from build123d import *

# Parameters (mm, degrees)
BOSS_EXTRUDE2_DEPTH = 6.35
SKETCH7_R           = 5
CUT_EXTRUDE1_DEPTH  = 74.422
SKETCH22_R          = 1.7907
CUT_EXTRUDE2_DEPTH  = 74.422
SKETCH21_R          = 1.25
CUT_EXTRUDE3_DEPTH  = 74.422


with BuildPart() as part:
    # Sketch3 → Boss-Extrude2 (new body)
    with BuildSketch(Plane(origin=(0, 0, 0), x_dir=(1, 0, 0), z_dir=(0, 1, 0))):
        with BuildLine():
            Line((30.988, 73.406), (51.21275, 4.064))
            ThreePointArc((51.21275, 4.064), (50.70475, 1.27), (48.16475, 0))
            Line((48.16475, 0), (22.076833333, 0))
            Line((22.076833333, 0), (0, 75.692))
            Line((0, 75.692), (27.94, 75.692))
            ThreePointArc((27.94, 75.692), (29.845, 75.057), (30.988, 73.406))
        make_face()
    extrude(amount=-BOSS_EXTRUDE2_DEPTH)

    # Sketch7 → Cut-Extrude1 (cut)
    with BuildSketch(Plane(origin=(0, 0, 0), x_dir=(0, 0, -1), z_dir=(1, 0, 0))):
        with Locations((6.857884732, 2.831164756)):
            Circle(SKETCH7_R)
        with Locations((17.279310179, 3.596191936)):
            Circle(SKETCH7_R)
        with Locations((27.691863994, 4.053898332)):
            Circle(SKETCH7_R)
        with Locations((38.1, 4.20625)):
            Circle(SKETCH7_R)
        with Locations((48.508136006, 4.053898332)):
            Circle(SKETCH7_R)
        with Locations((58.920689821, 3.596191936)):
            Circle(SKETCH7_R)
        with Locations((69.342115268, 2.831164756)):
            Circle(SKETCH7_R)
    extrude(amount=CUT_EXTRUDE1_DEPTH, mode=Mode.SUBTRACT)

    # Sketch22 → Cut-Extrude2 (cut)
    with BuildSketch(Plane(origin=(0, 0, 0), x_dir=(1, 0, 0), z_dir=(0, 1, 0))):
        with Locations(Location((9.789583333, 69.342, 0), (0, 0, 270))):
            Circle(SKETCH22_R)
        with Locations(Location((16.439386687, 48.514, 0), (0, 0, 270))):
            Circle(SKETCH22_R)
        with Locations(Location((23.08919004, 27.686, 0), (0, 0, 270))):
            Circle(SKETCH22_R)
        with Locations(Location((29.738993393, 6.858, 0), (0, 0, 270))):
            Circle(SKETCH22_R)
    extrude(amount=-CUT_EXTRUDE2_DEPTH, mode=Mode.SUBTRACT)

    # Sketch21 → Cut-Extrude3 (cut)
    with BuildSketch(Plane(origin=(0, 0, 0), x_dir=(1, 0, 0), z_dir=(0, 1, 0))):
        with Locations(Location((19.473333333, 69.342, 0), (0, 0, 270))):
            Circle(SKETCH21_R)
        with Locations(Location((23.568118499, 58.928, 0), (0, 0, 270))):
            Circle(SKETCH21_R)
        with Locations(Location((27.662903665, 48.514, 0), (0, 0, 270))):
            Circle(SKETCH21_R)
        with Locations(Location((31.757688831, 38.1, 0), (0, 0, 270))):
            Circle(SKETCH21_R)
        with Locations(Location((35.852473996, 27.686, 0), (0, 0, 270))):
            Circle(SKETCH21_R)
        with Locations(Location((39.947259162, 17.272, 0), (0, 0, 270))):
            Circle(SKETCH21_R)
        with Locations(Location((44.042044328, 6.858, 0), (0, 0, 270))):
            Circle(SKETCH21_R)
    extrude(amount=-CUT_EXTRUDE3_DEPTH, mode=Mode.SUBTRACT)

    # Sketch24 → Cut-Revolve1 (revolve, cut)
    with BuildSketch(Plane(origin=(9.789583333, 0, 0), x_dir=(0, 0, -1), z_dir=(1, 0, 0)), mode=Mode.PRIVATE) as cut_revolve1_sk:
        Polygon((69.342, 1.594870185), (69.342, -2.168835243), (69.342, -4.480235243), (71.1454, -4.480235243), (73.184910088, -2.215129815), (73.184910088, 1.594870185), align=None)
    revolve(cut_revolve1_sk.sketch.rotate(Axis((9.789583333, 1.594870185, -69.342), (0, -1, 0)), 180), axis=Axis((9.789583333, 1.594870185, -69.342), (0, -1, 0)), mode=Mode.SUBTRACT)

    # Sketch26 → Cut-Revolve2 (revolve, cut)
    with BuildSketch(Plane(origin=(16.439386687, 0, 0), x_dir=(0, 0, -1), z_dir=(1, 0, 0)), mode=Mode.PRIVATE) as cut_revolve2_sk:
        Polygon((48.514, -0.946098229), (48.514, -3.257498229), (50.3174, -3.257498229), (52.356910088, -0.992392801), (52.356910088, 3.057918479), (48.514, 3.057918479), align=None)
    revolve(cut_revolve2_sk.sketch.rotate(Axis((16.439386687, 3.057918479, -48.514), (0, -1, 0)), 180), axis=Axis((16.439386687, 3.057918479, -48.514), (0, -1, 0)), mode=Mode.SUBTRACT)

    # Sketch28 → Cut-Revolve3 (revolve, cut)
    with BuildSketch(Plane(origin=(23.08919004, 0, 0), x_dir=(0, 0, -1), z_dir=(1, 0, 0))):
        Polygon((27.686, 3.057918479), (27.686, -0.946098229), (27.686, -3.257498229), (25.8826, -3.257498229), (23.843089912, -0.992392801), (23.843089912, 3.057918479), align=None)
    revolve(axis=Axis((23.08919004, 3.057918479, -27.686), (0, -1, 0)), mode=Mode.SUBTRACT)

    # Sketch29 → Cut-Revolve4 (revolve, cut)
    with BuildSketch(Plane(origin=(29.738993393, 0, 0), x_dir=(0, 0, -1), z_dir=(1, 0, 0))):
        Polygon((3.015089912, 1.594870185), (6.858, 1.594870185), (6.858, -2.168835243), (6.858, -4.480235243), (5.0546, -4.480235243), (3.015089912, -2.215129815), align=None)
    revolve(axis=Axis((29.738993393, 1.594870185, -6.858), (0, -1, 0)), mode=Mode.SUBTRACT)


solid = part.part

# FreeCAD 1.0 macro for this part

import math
import FreeCAD as App
import Part
import Sketcher

V = App.Vector
Q = App.Units.Quantity

doc = App.newDocument("Part")
body = doc.addObject("PartDesign::Body", "Body")

# Sketch on XZ plane
sketch1 = body.newObject("Sketcher::SketchObject", "Sketch")
sketch1.AttachmentSupport = (doc.getObject("XZ_Plane"), [""])
sketch1.MapMode = "FlatFace"
sketch1.addGeometry([
    Part.LineSegment(V(51.2, -4.1, 0), V(31, -73.4, 0)),  # 0
    Part.ArcOfCircle(Part.Circle(V(27.9, -72.5, 0), V(0, 0, 1), 3.2), math.radians(-90), math.radians(-16)),  # 1
    Part.LineSegment(V(27.9, -75.7, 0), V(0, -75.7, 0)),  # 2
    Part.LineSegment(V(0, -75.7, 0), V(22.1, 0, 0)),  # 3
    Part.LineSegment(V(22.1, 0, 0), V(48.2, 0, 0)),  # 4
    Part.ArcOfCircle(Part.Circle(V(48.2, -3.2, 0), V(0, 0, 1), 3.2), math.radians(-16), math.radians(90)),  # 5
], False)
sketch1.addConstraint([
    Sketcher.Constraint("Tangent", 0, 2, 1, 2),
    Sketcher.Constraint("Tangent", 1, 1, 2, 1),
    Sketcher.Constraint("Coincident", 2, 2, 3, 1),
    Sketcher.Constraint("Coincident", 3, 2, 4, 1),
    Sketcher.Constraint("Tangent", 4, 2, 5, 2),
    Sketcher.Constraint("Tangent", 5, 1, 0, 1),
    Sketcher.Constraint("Horizontal", 2),
    Sketcher.Constraint("Horizontal", 4),
    Sketcher.Constraint("Equal", 1, 5),
    Sketcher.Constraint("PointOnObject", 2, 2, -2),
    Sketcher.Constraint("PointOnObject", 3, 2, -1),
    Sketcher.Constraint("Parallel", 0, 3),
    Sketcher.Constraint("DistanceX", 2, 2, 2, 1, Q("1.1 in")),
    Sketcher.Constraint("Radius", 1, Q("0.125 in")),
    Sketcher.Constraint("DistanceX", -1, 1, 0, 2, Q("1.22 in")),
    Sketcher.Constraint("DistanceY", 0, 2, -1, 1, Q("2.89 in")),
])
pad1 = body.newObject("PartDesign::Pad", "Pad")
pad1.Profile = sketch1
pad1.Length = Q("0.25 in")

# Sketch on YZ plane
sketch2 = body.newObject("Sketcher::SketchObject", "Sketch001")
sketch2.AttachmentSupport = (doc.getObject("YZ_Plane"), [""])
sketch2.MapMode = "FlatFace"
sketch2.addGeometry([
    Part.Circle(V(3, -7, 0), V(0, 0, 1), 5),  # 0
    Part.Circle(V(4, -17, 0), V(0, 0, 1), 5),  # 1
    Part.Circle(V(4, -28, 0), V(0, 0, 1), 5),  # 2
    Part.Circle(V(4, -38, 0), V(0, 0, 1), 5),  # 3
    Part.Circle(V(4, -49, 0), V(0, 0, 1), 5),  # 4
    Part.Circle(V(4, -59, 0), V(0, 0, 1), 5),  # 5
    Part.Circle(V(3, -69, 0), V(0, 0, 1), 5),  # 6
], False)
sketch2.addConstraint([
    Sketcher.Constraint("Equal", 0, 1),
    Sketcher.Constraint("Equal", 1, 2),
    Sketcher.Constraint("Equal", 2, 3),
    Sketcher.Constraint("Equal", 3, 4),
    Sketcher.Constraint("Equal", 4, 5),
    Sketcher.Constraint("Equal", 5, 6),
    Sketcher.Constraint("Vertical", 2, 3, 4, 3),
    Sketcher.Constraint("Vertical", 1, 3, 5, 3),
    Sketcher.Constraint("Vertical", 0, 3, 6, 3),
    Sketcher.Constraint("DistanceY", 3, 3, -1, 1, Q("1.5 in")),
    Sketcher.Constraint("Diameter", 0, 10.0),
    Sketcher.Constraint("DistanceX", -1, 1, 2, 3, 4.053898),
    Sketcher.Constraint("DistanceX", -1, 1, 1, 3, 3.596192),
    Sketcher.Constraint("DistanceY", 1, 3, -1, 1, 17.27931),
    Sketcher.Constraint("DistanceX", -1, 1, 3, 3, 4.20625),
    Sketcher.Constraint("DistanceY", 5, 3, -1, 1, 58.92069),
    Sketcher.Constraint("DistanceY", 2, 3, 0, 3, 20.833979),
    Sketcher.Constraint("DistanceY", 4, 3, 0, 3, 41.650251),
    Sketcher.Constraint("DistanceY", 6, 3, 4, 3, 20.833979),
    Sketcher.Constraint("DistanceX", -1, 1, 0, 3, 2.831165),
    Sketcher.Constraint("DistanceY", 0, 3, -1, 1, 6.857885),
])
pocket1 = body.newObject("PartDesign::Pocket", "Pocket")
pocket1.Profile = sketch2
pocket1.Length = Q("2.93 in")
pocket1.Reversed = True

# Sketch on XZ plane
sketch3 = body.newObject("Sketcher::SketchObject", "Sketch002")
sketch3.AttachmentSupport = (doc.getObject("XZ_Plane"), [""])
sketch3.MapMode = "FlatFace"
sketch3.addGeometry([
    Part.Circle(V(9.8, -69.3, 0), V(0, 0, 1), 1.8),
    Part.Circle(V(16.4, -48.5, 0), V(0, 0, 1), 1.8),
    Part.Circle(V(23.1, -27.7, 0), V(0, 0, 1), 1.8),
    Part.Circle(V(29.7, -6.9, 0), V(0, 0, 1), 1.8),
], False)
sketch3.addConstraint([
    Sketcher.Constraint("Equal", 0, 1),
    Sketcher.Constraint("Equal", 1, 2),
    Sketcher.Constraint("Equal", 2, 3),
    Sketcher.Constraint("Diameter", 0, Q("0.141 in")),
    Sketcher.Constraint("DistanceY", 0, 3, -1, 1, Q("2.73 in")),
    Sketcher.Constraint("DistanceY", 1, 3, -1, 1, Q("1.91 in")),
    Sketcher.Constraint("DistanceY", 2, 3, -1, 1, Q("1.09 in")),
    Sketcher.Constraint("DistanceY", 3, 3, -1, 1, Q("0.27 in")),
    Sketcher.Constraint("DistanceX", -1, 1, 2, 3, 23.08919),
    Sketcher.Constraint("DistanceX", 0, 3, 3, 3, 19.94941),
    Sketcher.Constraint("DistanceX", -1, 1, 0, 3, 9.789583),
    Sketcher.Constraint("DistanceX", -1, 1, 1, 3, 16.439387),
])
pocket2 = body.newObject("PartDesign::Pocket", "Pocket001")
pocket2.Profile = sketch3
pocket2.Length = Q("2.93 in")
pocket2.Reversed = True

# Sketch on XZ plane
sketch4 = body.newObject("Sketcher::SketchObject", "Sketch003")
sketch4.AttachmentSupport = (doc.getObject("XZ_Plane"), [""])
sketch4.MapMode = "FlatFace"
sketch4.addGeometry([
    Part.Circle(V(19.5, -69.3, 0), V(0, 0, 1), 1.2),  # 0
    Part.Circle(V(23.6, -58.9, 0), V(0, 0, 1), 1.2),  # 1
    Part.Circle(V(27.7, -48.5, 0), V(0, 0, 1), 1.2),  # 2
    Part.Circle(V(31.8, -38.1, 0), V(0, 0, 1), 1.2),  # 3
    Part.Circle(V(35.9, -27.7, 0), V(0, 0, 1), 1.2),  # 4
    Part.Circle(V(39.9, -17.3, 0), V(0, 0, 1), 1.2),  # 5
    Part.Circle(V(44, -6.9, 0), V(0, 0, 1), 1.2),  # 6
], False)
sketch4.addConstraint([
    Sketcher.Constraint("Equal", 0, 1),
    Sketcher.Constraint("Equal", 1, 2),
    Sketcher.Constraint("Equal", 2, 3),
    Sketcher.Constraint("Equal", 3, 4),
    Sketcher.Constraint("Equal", 4, 5),
    Sketcher.Constraint("Equal", 5, 6),
    Sketcher.Constraint("DistanceY", 3, 3, -1, 1, Q("1.5 in")),
    Sketcher.Constraint("Diameter", 0, 2.5),
    Sketcher.Constraint("DistanceY", 0, 3, -1, 1, Q("2.73 in")),
    Sketcher.Constraint("DistanceY", 1, 3, -1, 1, Q("2.32 in")),
    Sketcher.Constraint("DistanceY", 2, 3, -1, 1, Q("1.91 in")),
    Sketcher.Constraint("DistanceY", 4, 3, -1, 1, Q("1.09 in")),
    Sketcher.Constraint("DistanceY", 5, 3, -1, 1, Q("0.68 in")),
    Sketcher.Constraint("DistanceY", 6, 3, -1, 1, Q("0.27 in")),
    Sketcher.Constraint("DistanceX", -1, 1, 1, 3, 23.568118),
    Sketcher.Constraint("DistanceX", -1, 1, 3, 3, 31.757689),
    Sketcher.Constraint("DistanceX", -1, 1, 5, 3, 39.947259),
    Sketcher.Constraint("DistanceX", 0, 3, 2, 3, 8.18957),
    Sketcher.Constraint("DistanceX", 2, 3, 4, 3, 8.18957),
    Sketcher.Constraint("DistanceX", 4, 3, 6, 3, 8.18957),
    Sketcher.Constraint("DistanceX", -1, 1, 0, 3, 19.473333),
])
pocket3 = body.newObject("PartDesign::Pocket", "Pocket002")
pocket3.Profile = sketch4
pocket3.Length = Q("2.93 in")
pocket3.Reversed = True

# Sketch on YZ plane
sketch5 = body.newObject("Sketcher::SketchObject", "Sketch004")
sketch5.AttachmentSupport = (doc.getObject("YZ_Plane"), [""])
sketch5.MapMode = "FlatFace"
sketch5.AttachmentOffset = App.Placement(V(0, 0, 9.789583), App.Rotation())
sketch5.addGeometry([
    Part.LineSegment(V(1.6, -69.3, 0), V(-4.5, -69.3, 0)),  # 0
    Part.LineSegment(V(-4.5, -69.3, 0), V(-4.5, -71.1, 0)),  # 1
    Part.LineSegment(V(-4.5, -71.1, 0), V(-2.2, -73.2, 0)),  # 2
    Part.LineSegment(V(-2.2, -73.2, 0), V(1.6, -73.2, 0)),  # 3
    Part.LineSegment(V(1.6, -73.2, 0), V(1.6, -69.3, 0)),  # 4
], False)
sketch5.addGeometry(Part.LineSegment(V(1.6, -69.3, 0), V(-4.5, -69.3, 0)), True)  # axis
sketch5.addConstraint([
    Sketcher.Constraint("Coincident", 0, 2, 1, 1),
    Sketcher.Constraint("Coincident", 1, 2, 2, 1),
    Sketcher.Constraint("Coincident", 2, 2, 3, 1),
    Sketcher.Constraint("Coincident", 3, 2, 4, 1),
    Sketcher.Constraint("Coincident", 4, 2, 0, 1),
    Sketcher.Constraint("Horizontal", 0),
    Sketcher.Constraint("Vertical", 1),
    Sketcher.Constraint("Horizontal", 3),
    Sketcher.Constraint("Vertical", 4),
    Sketcher.Constraint("Horizontal", 5),
    Sketcher.Constraint("Coincident", 5, 1, 4, 2),
    Sketcher.Constraint("Vertical", 1, 2, 5, 2),
    Sketcher.Constraint("Angle", 2, Q("-42 deg")),
    Sketcher.Constraint("DistanceX", 3, 1, 3, 2, Q("0.15 in")),
    Sketcher.Constraint("Distance", 2, Q("0.12 in")),
    Sketcher.Constraint("DistanceY", 1, 2, 1, 1, Q("0.071 in")),
    Sketcher.Constraint("DistanceY", 0, 2, -1, 1, Q("2.73 in")),
    Sketcher.Constraint("DistanceX", 2, 2, -1, 1, 2.21513),
])
groove = body.newObject("PartDesign::Groove", "Groove")
groove.Profile = sketch5
groove.ReferenceAxis = (sketch5, ["Axis0"])
groove.Angle = 360

# Sketch on YZ plane
sketch6 = body.newObject("Sketcher::SketchObject", "Sketch005")
sketch6.AttachmentSupport = (doc.getObject("YZ_Plane"), [""])
sketch6.MapMode = "FlatFace"
sketch6.AttachmentOffset = App.Placement(V(0, 0, 16.439387), App.Rotation())
sketch6.addGeometry([
    Part.LineSegment(V(-3.3, -48.5, 0), V(-3.3, -50.3, 0)),  # 0
    Part.LineSegment(V(-3.3, -50.3, 0), V(-1, -52.4, 0)),  # 1
    Part.LineSegment(V(-1, -52.4, 0), V(3.1, -52.4, 0)),  # 2
    Part.LineSegment(V(3.1, -52.4, 0), V(3.1, -48.5, 0)),  # 3
    Part.LineSegment(V(3.1, -48.5, 0), V(-3.3, -48.5, 0)),  # 4
], False)
sketch6.addGeometry(Part.LineSegment(V(3.1, -48.5, 0), V(-3.3, -48.5, 0)), True)  # axis
sketch6.addConstraint([
    Sketcher.Constraint("Coincident", 0, 2, 1, 1),
    Sketcher.Constraint("Coincident", 1, 2, 2, 1),
    Sketcher.Constraint("Coincident", 2, 2, 3, 1),
    Sketcher.Constraint("Coincident", 3, 2, 4, 1),
    Sketcher.Constraint("Coincident", 4, 2, 0, 1),
    Sketcher.Constraint("Vertical", 0),
    Sketcher.Constraint("Horizontal", 2),
    Sketcher.Constraint("Vertical", 3),
    Sketcher.Constraint("Horizontal", 4),
    Sketcher.Constraint("Horizontal", 5),
    Sketcher.Constraint("Coincident", 5, 1, 3, 2),
    Sketcher.Constraint("Vertical", 0, 2, 5, 2),
    Sketcher.Constraint("Angle", 1, Q("-42 deg")),
    Sketcher.Constraint("Distance", 1, Q("0.12 in")),
    Sketcher.Constraint("DistanceY", 0, 2, 0, 1, Q("0.071 in")),
    Sketcher.Constraint("DistanceY", 3, 2, -1, 1, Q("1.91 in")),
    Sketcher.Constraint("DistanceX", 2, 1, 2, 2, 4.050311),
    Sketcher.Constraint("DistanceX", 0, 2, -1, 1, 3.257498),
])
groove2 = body.newObject("PartDesign::Groove", "Groove001")
groove2.Profile = sketch6
groove2.ReferenceAxis = (sketch6, ["Axis0"])
groove2.Angle = 360

# Sketch on YZ plane
sketch7 = body.newObject("Sketcher::SketchObject", "Sketch006")
sketch7.AttachmentSupport = (doc.getObject("YZ_Plane"), [""])
sketch7.MapMode = "FlatFace"
sketch7.AttachmentOffset = App.Placement(V(0, 0, 23.08919), App.Rotation())
sketch7.addGeometry([
    Part.LineSegment(V(-3.3, -27.7, 0), V(3.1, -27.7, 0)),  # 0
    Part.LineSegment(V(3.1, -27.7, 0), V(3.1, -23.8, 0)),  # 1
    Part.LineSegment(V(3.1, -23.8, 0), V(-1, -23.8, 0)),  # 2
    Part.LineSegment(V(-1, -23.8, 0), V(-3.3, -25.9, 0)),  # 3
    Part.LineSegment(V(-3.3, -25.9, 0), V(-3.3, -27.7, 0)),  # 4
], False)
sketch7.addGeometry(Part.LineSegment(V(3.1, -27.7, 0), V(-3.3, -27.7, 0)), True)  # axis
sketch7.addConstraint([
    Sketcher.Constraint("Coincident", 0, 2, 1, 1),
    Sketcher.Constraint("Coincident", 1, 2, 2, 1),
    Sketcher.Constraint("Coincident", 2, 2, 3, 1),
    Sketcher.Constraint("Coincident", 3, 2, 4, 1),
    Sketcher.Constraint("Coincident", 4, 2, 0, 1),
    Sketcher.Constraint("Horizontal", 0),
    Sketcher.Constraint("Vertical", 1),
    Sketcher.Constraint("Horizontal", 2),
    Sketcher.Constraint("Vertical", 4),
    Sketcher.Constraint("Horizontal", 5),
    Sketcher.Constraint("Coincident", 5, 1, 0, 2),
    Sketcher.Constraint("Vertical", 3, 2, 5, 2),
    Sketcher.Constraint("Angle", 3, Q("-138 deg")),
    Sketcher.Constraint("Distance", 3, Q("0.12 in")),
    Sketcher.Constraint("DistanceY", 4, 2, 4, 1, Q("0.071 in")),
    Sketcher.Constraint("DistanceY", 0, 2, -1, 1, Q("1.09 in")),
    Sketcher.Constraint("DistanceX", 2, 2, 2, 1, 4.050311),
    Sketcher.Constraint("DistanceX", 3, 2, -1, 1, 3.257498),
])
groove3 = body.newObject("PartDesign::Groove", "Groove002")
groove3.Profile = sketch7
groove3.ReferenceAxis = (sketch7, ["Axis0"])
groove3.Angle = 360

# Sketch on YZ plane
sketch8 = body.newObject("Sketcher::SketchObject", "Sketch007")
sketch8.AttachmentSupport = (doc.getObject("YZ_Plane"), [""])
sketch8.MapMode = "FlatFace"
sketch8.AttachmentOffset = App.Placement(V(0, 0, 29.738993), App.Rotation())
sketch8.addGeometry([
    Part.LineSegment(V(1.6, -6.9, 0), V(1.6, -3, 0)),  # 0
    Part.LineSegment(V(1.6, -3, 0), V(-2.2, -3, 0)),  # 1
    Part.LineSegment(V(-2.2, -3, 0), V(-4.5, -5.1, 0)),  # 2
    Part.LineSegment(V(-4.5, -5.1, 0), V(-4.5, -6.9, 0)),  # 3
    Part.LineSegment(V(-4.5, -6.9, 0), V(1.6, -6.9, 0)),  # 4
], False)
sketch8.addGeometry(Part.LineSegment(V(1.6, -6.9, 0), V(-4.5, -6.9, 0)), True)  # axis
sketch8.addConstraint([
    Sketcher.Constraint("Coincident", 0, 2, 1, 1),
    Sketcher.Constraint("Coincident", 1, 2, 2, 1),
    Sketcher.Constraint("Coincident", 2, 2, 3, 1),
    Sketcher.Constraint("Coincident", 3, 2, 4, 1),
    Sketcher.Constraint("Coincident", 4, 2, 0, 1),
    Sketcher.Constraint("Vertical", 0),
    Sketcher.Constraint("Horizontal", 1),
    Sketcher.Constraint("Vertical", 3),
    Sketcher.Constraint("Horizontal", 4),
    Sketcher.Constraint("Horizontal", 5),
    Sketcher.Constraint("Coincident", 5, 1, 4, 2),
    Sketcher.Constraint("Vertical", 2, 2, 5, 2),
    Sketcher.Constraint("Angle", 2, Q("-138 deg")),
    Sketcher.Constraint("DistanceX", 1, 2, 1, 1, Q("0.15 in")),
    Sketcher.Constraint("Distance", 2, Q("0.12 in")),
    Sketcher.Constraint("DistanceY", 3, 2, 3, 1, Q("0.071 in")),
    Sketcher.Constraint("DistanceY", 3, 2, -1, 1, Q("0.27 in")),
    Sketcher.Constraint("DistanceX", -1, 1, 0, 2, 1.59487),
])
groove4 = body.newObject("PartDesign::Groove", "Groove003")
groove4.Profile = sketch8
groove4.ReferenceAxis = (sketch8, ["Axis0"])
groove4.Angle = 360

doc.recompute()
